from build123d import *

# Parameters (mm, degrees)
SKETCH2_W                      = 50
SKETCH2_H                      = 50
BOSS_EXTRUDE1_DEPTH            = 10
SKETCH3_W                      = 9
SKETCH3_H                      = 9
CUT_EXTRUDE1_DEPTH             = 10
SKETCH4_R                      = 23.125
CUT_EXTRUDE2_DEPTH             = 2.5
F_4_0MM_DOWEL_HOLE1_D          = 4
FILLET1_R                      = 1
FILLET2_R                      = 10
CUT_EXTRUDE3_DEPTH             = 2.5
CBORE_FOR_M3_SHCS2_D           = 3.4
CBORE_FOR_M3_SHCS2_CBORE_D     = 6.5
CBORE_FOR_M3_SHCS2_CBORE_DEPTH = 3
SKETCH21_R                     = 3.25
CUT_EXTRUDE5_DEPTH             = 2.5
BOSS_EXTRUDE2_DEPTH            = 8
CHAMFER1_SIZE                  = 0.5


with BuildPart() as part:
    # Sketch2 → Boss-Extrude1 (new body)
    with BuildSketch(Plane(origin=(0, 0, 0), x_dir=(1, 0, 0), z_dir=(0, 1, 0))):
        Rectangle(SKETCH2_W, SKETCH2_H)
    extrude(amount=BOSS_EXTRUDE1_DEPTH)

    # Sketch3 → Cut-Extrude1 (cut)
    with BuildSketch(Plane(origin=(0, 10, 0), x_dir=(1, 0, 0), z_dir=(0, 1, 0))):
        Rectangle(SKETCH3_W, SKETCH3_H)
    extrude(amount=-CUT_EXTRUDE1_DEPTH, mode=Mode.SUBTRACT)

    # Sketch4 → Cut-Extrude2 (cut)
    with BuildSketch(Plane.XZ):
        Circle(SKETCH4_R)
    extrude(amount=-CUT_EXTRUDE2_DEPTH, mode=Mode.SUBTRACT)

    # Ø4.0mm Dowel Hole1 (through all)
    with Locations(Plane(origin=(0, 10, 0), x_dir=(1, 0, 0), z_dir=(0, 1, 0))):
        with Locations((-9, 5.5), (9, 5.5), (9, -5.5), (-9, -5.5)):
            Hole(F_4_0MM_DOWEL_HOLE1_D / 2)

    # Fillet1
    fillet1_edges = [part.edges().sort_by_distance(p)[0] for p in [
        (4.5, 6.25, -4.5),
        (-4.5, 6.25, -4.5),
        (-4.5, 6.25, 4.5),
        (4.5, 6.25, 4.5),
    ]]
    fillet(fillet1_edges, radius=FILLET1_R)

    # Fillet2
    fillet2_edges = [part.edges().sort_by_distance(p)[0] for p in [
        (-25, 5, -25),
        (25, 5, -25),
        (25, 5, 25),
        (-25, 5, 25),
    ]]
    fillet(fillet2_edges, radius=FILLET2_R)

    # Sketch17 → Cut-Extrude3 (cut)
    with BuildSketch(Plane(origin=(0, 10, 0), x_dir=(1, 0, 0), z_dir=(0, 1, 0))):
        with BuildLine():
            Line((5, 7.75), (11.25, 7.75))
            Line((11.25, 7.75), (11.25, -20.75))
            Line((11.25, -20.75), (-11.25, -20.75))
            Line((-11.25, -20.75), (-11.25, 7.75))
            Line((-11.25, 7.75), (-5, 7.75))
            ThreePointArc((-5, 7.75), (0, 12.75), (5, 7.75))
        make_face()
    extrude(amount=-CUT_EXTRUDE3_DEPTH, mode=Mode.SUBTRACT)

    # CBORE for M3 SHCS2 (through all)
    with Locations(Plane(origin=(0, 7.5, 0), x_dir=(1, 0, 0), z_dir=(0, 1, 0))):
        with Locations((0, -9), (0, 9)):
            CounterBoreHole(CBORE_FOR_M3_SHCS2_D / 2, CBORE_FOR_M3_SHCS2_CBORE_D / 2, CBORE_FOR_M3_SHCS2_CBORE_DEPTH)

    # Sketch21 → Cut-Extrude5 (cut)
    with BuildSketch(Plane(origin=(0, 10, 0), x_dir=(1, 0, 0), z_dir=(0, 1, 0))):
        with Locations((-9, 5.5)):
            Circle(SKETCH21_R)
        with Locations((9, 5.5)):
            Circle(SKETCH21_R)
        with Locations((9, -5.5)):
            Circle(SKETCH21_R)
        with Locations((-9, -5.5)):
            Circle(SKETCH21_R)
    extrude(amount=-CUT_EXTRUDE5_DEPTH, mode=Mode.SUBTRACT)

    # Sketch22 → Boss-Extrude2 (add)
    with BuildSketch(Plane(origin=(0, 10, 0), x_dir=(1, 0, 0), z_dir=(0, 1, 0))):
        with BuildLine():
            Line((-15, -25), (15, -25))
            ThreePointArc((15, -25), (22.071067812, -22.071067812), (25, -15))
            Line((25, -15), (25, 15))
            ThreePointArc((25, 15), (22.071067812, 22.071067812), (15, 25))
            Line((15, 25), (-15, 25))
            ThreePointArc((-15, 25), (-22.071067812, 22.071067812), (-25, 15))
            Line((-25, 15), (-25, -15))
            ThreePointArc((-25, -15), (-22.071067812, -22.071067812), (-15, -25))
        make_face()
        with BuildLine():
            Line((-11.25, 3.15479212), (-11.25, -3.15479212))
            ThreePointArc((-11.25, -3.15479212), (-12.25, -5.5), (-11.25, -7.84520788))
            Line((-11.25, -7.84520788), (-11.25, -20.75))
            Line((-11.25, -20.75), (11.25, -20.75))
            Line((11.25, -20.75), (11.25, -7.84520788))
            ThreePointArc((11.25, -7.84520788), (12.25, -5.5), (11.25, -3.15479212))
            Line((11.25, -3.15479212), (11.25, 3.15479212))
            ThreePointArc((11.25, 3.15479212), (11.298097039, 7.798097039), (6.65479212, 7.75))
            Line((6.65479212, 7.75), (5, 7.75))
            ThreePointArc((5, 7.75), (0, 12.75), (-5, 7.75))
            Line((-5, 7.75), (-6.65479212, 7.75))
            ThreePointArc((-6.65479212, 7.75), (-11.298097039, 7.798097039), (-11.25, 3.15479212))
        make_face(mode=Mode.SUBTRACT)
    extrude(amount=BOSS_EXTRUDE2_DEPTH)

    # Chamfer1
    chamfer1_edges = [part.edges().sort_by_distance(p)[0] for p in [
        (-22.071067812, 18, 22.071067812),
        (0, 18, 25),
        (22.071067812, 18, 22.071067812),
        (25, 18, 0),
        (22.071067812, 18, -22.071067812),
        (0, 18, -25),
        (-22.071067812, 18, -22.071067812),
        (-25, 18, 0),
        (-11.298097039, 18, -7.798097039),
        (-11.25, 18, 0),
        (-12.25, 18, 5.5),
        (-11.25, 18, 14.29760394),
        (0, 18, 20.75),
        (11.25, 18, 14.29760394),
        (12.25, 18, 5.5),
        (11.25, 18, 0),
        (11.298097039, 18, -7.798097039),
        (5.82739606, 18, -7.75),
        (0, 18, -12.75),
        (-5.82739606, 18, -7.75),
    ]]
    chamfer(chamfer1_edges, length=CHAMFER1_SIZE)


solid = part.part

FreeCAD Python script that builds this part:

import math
import FreeCAD as App
import Part
import Sketcher
from FreeCAD import Vector


def edges_at(feature, points):
    """Names of the edges that pass closest to the given points."""
    edges = feature.Shape.Edges
    near = lambda p: min(range(len(edges)), key=lambda i: edges[i].distToShape(Part.Vertex(*p))[0])
    return sorted({f"Edge{near(p) + 1}" for p in points})


def add_polygon(sketch, points):
    """Adds a closed chain of lines whose ends are joined by coincident constraints."""
    first, n = sketch.GeometryCount, len(points)
    for a, b in zip(points, points[1:] + points[:1]):
        sketch.addGeometry(Part.LineSegment(App.Vector(*a, 0), App.Vector(*b, 0)), False)
    for i in range(n):
        sketch.addConstraint(Sketcher.Constraint("Coincident", first + i, 2, first + (i + 1) % n, 1))

doc = App.newDocument("Part")
body = doc.addObject("PartDesign::Body", "Body")

# Sketch on XZ plane
sketch1 = body.newObject("Sketcher::SketchObject", "Sketch")
sketch1.AttachmentSupport = (doc.getObject("XZ_Plane"), [""])
sketch1.MapMode = "FlatFace"
add_polygon(sketch1, [(-25, -25), (-25, 25), (25, 25), (25, -25)])  # lines 0-3
sketch1.addConstraint([
    Sketcher.Constraint("Vertical", 0),
    Sketcher.Constraint("Horizontal", 1),
    Sketcher.Constraint("Vertical", 2),
    Sketcher.Constraint("Horizontal", 3),
    Sketcher.Constraint("Symmetric", 0, 2, 2, 2, -1, 1),
    Sketcher.Constraint("Equal", 3, 0),
    Sketcher.Constraint("DistanceX", 1, 1, 1, 2, 50.0),
])
pad1 = body.newObject("PartDesign::Pad", "Pad")
pad1.Profile = sketch1
pad1.Length = 10
pad1.Reversed = True

# Sketch on XZ plane
sketch2 = body.newObject("Sketcher::SketchObject", "Sketch001")
sketch2.AttachmentSupport = (doc.getObject("XZ_Plane"), [""])
sketch2.MapMode = "FlatFace"
sketch2.AttachmentOffset = App.Placement(Vector(0, 0, -10), App.Rotation())
add_polygon(sketch2, [(-4, -4), (-4, 4), (4, 4), (4, -4)])  # lines 0-3
sketch2.addConstraint([
    Sketcher.Constraint("Vertical", 0),
    Sketcher.Constraint("Horizontal", 1),
    Sketcher.Constraint("Vertical", 2),
    Sketcher.Constraint("Horizontal", 3),
    Sketcher.Constraint("Symmetric", 0, 2, 2, 2, -1, 1),
    Sketcher.Constraint("Equal", 3, 0),
    Sketcher.Constraint("DistanceX", 1, 1, 1, 2, 9.0),
])
pocket1 = body.newObject("PartDesign::Pocket", "Pocket")
pocket1.Profile = sketch2
pocket1.Length = 10
pocket1.Reversed = True

# Sketch on XZ plane
sketch3 = body.newObject("Sketcher::SketchObject", "Sketch002")
sketch3.AttachmentSupport = (doc.getObject("XZ_Plane"), [""])
sketch3.MapMode = "FlatFace"
sketch3.addGeometry(Part.Circle(Vector(0, 0, 0), Vector(0, 0, 1), 23), False)
sketch3.addConstraint([
    Sketcher.Constraint("Coincident", 0, 3, -1, 1),
    Sketcher.Constraint("Diameter", 0, 46.25),
])
pocket2 = body.newObject("PartDesign::Pocket", "Pocket001")
pocket2.Profile = sketch3
pocket2.Length = 2.5

# Sketch on XZ plane
sketch4 = body.newObject("Sketcher::SketchObject", "Sketch003")
sketch4.AttachmentSupport = (doc.getObject("XZ_Plane"), [""])
sketch4.MapMode = "FlatFace"
sketch4.AttachmentOffset = App.Placement(Vector(0, 0, -10), App.Rotation())
sketch4.addGeometry([
    Part.Circle(Vector(-9, -5.5, 0), Vector(0, 0, 1), 2),
    Part.Circle(Vector(9, -5.5, 0), Vector(0, 0, 1), 2),
    Part.Circle(Vector(9, 5.5, 0), Vector(0, 0, 1), 2),
    Part.Circle(Vector(-9, 5.5, 0), Vector(0, 0, 1), 2),
], False)
sketch4.addConstraint([
    Sketcher.Constraint("Equal", 0, 1),
    Sketcher.Constraint("Equal", 1, 2),
    Sketcher.Constraint("Equal", 2, 3),
    Sketcher.Constraint("Symmetric", 0, 3, 2, 3, -1, 1),
    Sketcher.Constraint("Symmetric", 1, 3, 3, 3, -1, 1),
    Sketcher.Constraint("Symmetric", 0, 3, 1, 3, -2),
    Sketcher.Constraint("Diameter", 0, 4.0),
    Sketcher.Constraint("DistanceX", 0, 3, -1, 1, 9.0),
    Sketcher.Constraint("DistanceY", 1, 3, 2, 3, 11.0),
])
doc.recompute()
hole = body.newObject("PartDesign::Hole", "Hole")
hole.Profile = sketch4
hole.ThreadType = "None"
hole.Diameter = 4
hole.DepthType = "ThroughAll"
hole.Reversed = True
doc.recompute()

fillet = body.newObject("PartDesign::Fillet", "Fillet")
fillet.Base = (hole, edges_at(hole, [
    (4.5, 6.25, -4.5),
    (-4.5, 6.25, -4.5),
    (-4.5, 6.25, 4.5),
    (4.5, 6.25, 4.5),
]))
fillet.Radius = 1
doc.recompute()

fillet2 = body.newObject("PartDesign::Fillet", "Fillet001")
fillet2.Base = (fillet, edges_at(fillet, [
    (-25, 5, -25),
    (25, 5, -25),
    (25, 5, 25),
    (-25, 5, 25),
]))
fillet2.Radius = 10

# Sketch on XZ plane
sketch5 = body.newObject("Sketcher::SketchObject", "Sketch004")
sketch5.AttachmentSupport = (doc.getObject("XZ_Plane"), [""])
sketch5.MapMode = "FlatFace"
sketch5.AttachmentOffset = App.Placement(Vector(0, 0, -10), App.Rotation())
sketch5.addGeometry([
    Part.LineSegment(Vector(11, -8, 0), Vector(5, -8, 0)),  # 0
    Part.ArcOfCircle(Part.Circle(Vector(0, -8, 0), Vector(0, 0, 1), 5), math.radians(180), math.radians(360)),  # 1
    Part.LineSegment(Vector(-5, -8, 0), Vector(-11, -8, 0)),  # 2
    Part.LineSegment(Vector(-11, -8, 0), Vector(-11, 21, 0)),  # 3
    Part.LineSegment(Vector(-11, 21, 0), Vector(11, 21, 0)),  # 4
    Part.LineSegment(Vector(11, 21, 0), Vector(11, -8, 0)),  # 5
], False)
sketch5.addConstraint([
    Sketcher.Constraint("Coincident", 0, 2, 1, 2),
    Sketcher.Constraint("Coincident", 1, 1, 2, 1),
    Sketcher.Constraint("Coincident", 2, 2, 3, 1),
    Sketcher.Constraint("Coincident", 3, 2, 4, 1),
    Sketcher.Constraint("Coincident", 4, 2, 5, 1),
    Sketcher.Constraint("Coincident", 5, 2, 0, 1),
    Sketcher.Constraint("Horizontal", 0),
    Sketcher.Constraint("Horizontal", 2),
    Sketcher.Constraint("Vertical", 3),
    Sketcher.Constraint("Horizontal", 4),
    Sketcher.Constraint("Vertical", 5),
    Sketcher.Constraint("Symmetric", 0, 2, 1, 1, -2),
    Sketcher.Constraint("Horizontal", 1, 3, 0, 2),
    Sketcher.Constraint("Equal", 0, 2),
    Sketcher.Constraint("Radius", 1, 5.0),
    Sketcher.Constraint("DistanceX", 4, 1, 4, 2, 22.5),
    Sketcher.Constraint("DistanceY", 3, 1, 3, 2, 28.5),
    Sketcher.Constraint("DistanceY", 1, 3, -1, 1, 7.75),
])
pocket3 = body.newObject("PartDesign::Pocket", "Pocket002")
pocket3.Profile = sketch5
pocket3.Length = 2.5
pocket3.Reversed = True

# Sketch on XZ plane
sketch6 = body.newObject("Sketcher::SketchObject", "Sketch005")
sketch6.AttachmentSupport = (doc.getObject("XZ_Plane"), [""])
sketch6.MapMode = "FlatFace"
sketch6.AttachmentOffset = App.Placement(Vector(0, 0, -7.5), App.Rotation())
sketch6.addGeometry([
    Part.Circle(Vector(0, 9, 0), Vector(0, 0, 1), 1.7),
    Part.Circle(Vector(0, -9, 0), Vector(0, 0, 1), 1.7),
], False)
sketch6.addConstraint([
    Sketcher.Constraint("Equal", 0, 1),
    Sketcher.Constraint("Symmetric", 0, 3, 1, 3, -1, 1),
    Sketcher.Constraint("PointOnObject", 0, 3, -2),
    Sketcher.Constraint("Diameter", 0, 3.4),
    Sketcher.Constraint("DistanceY", -1, 1, 0, 3, 9.0),
])
doc.recompute()
hole2 = body.newObject("PartDesign::Hole", "Hole001")
hole2.Profile = sketch6
hole2.ThreadType = "None"
hole2.Diameter = 3.4
hole2.DepthType = "ThroughAll"
hole2.HoleCutType = "Counterbore"
hole2.HoleCutDiameter = 6.5
hole2.HoleCutDepth = 3
hole2.Reversed = True

# Sketch on XZ plane
sketch7 = body.newObject("Sketcher::SketchObject", "Sketch006")
sketch7.AttachmentSupport = (doc.getObject("XZ_Plane"), [""])
sketch7.MapMode = "FlatFace"
sketch7.AttachmentOffset = App.Placement(Vector(0, 0, -10), App.Rotation())
sketch7.addGeometry([
    Part.Circle(Vector(-9, -5.5, 0), Vector(0, 0, 1), 3.2),
    Part.Circle(Vector(9, -5.5, 0), Vector(0, 0, 1), 3.2),
    Part.Circle(Vector(9, 5.5, 0), Vector(0, 0, 1), 3.2),
    Part.Circle(Vector(-9, 5.5, 0), Vector(0, 0, 1), 3.2),
], False)
sketch7.addConstraint([
    Sketcher.Constraint("Equal", 0, 1),
    Sketcher.Constraint("Equal", 1, 2),
    Sketcher.Constraint("Equal", 2, 3),
    Sketcher.Constraint("Symmetric", 0, 3, 2, 3, -1, 1),
    Sketcher.Constraint("Symmetric", 1, 3, 3, 3, -1, 1),
    Sketcher.Constraint("Symmetric", 0, 3, 1, 3, -2),
    Sketcher.Constraint("Diameter", 0, 6.5),
    Sketcher.Constraint("DistanceX", 0, 3, -1, 1, 9.0),
    Sketcher.Constraint("DistanceY", 1, 3, 2, 3, 11.0),
])
pocket4 = body.newObject("PartDesign::Pocket", "Pocket003")
pocket4.Profile = sketch7
pocket4.Length = 2.5
pocket4.Reversed = True

# Sketch on XZ plane
sketch8 = body.newObject("Sketcher::SketchObject", "Sketch007")
sketch8.AttachmentSupport = (doc.getObject("XZ_Plane"), [""])
sketch8.MapMode = "FlatFace"
sketch8.AttachmentOffset = App.Placement(Vector(0, 0, -10), App.Rotation())
sketch8.addGeometry([
    Part.LineSegment(Vector(-15, 25, 0), Vector(15, 25, 0)),  # 0
    Part.ArcOfCircle(Part.Circle(Vector(15, 15, 0), Vector(0, 0, 1), 10), math.radians(0), math.radians(90)),  # 1
    Part.LineSegment(Vector(25, 15, 0), Vector(25, -15, 0)),  # 2
    Part.ArcOfCircle(Part.Circle(Vector(15, -15, 0), Vector(0, 0, 1), 10), math.radians(-90), math.radians(0)),  # 3
    Part.LineSegment(Vector(15, -25, 0), Vector(-15, -25, 0)),  # 4
    Part.ArcOfCircle(Part.Circle(Vector(-15, -15, 0), Vector(0, 0, 1), 10), math.radians(180), math.radians(270)),  # 5
    Part.LineSegment(Vector(-25, -15, 0), Vector(-25, 15, 0)),  # 6
    Part.ArcOfCircle(Part.Circle(Vector(-15, 15, 0), Vector(0, 0, 1), 10), math.radians(90), math.radians(180)),  # 7
    Part.LineSegment(Vector(-11.2, 3.2, 0), Vector(-11.2, -3.2, 0)),  # 8
    Part.ArcOfCircle(Part.Circle(Vector(-9, -5.5, 0), Vector(0, 0, 1), 3.2), math.radians(134), math.radians(316)),  # 9
    Part.LineSegment(Vector(-6.7, -7.8, 0), Vector(-5, -7.8, 0)),  # 10
    Part.ArcOfCircle(Part.Circle(Vector(0, -7.8, 0), Vector(0, 0, 1), 5), math.radians(180), math.radians(360)),  # 11
    Part.LineSegment(Vector(5, -7.8, 0), Vector(6.7, -7.8, 0)),  # 12
    Part.ArcOfCircle(Part.Circle(Vector(9, -5.5, 0), Vector(0, 0, 1), 3.2), math.radians(-136), math.radians(46)),  # 13
    Part.LineSegment(Vector(11.2, -3.2, 0), Vector(11.2, 3.2, 0)),  # 14
    Part.ArcOfCircle(Part.Circle(Vector(9, 5.5, 0), Vector(0, 0, 1), 3.2), math.radians(-46), math.radians(46)),  # 15
    Part.LineSegment(Vector(11.2, 7.8, 0), Vector(11.2, 20.8, 0)),  # 16
    Part.LineSegment(Vector(11.2, 20.8, 0), Vector(-11.2, 20.8, 0)),  # 17
    Part.LineSegment(Vector(-11.2, 20.8, 0), Vector(-11.2, 7.8, 0)),  # 18
    Part.ArcOfCircle(Part.Circle(Vector(-9, 5.5, 0), Vector(0, 0, 1), 3.2), math.radians(134), math.radians(226)),  # 19
], False)
sketch8.addConstraint([
    Sketcher.Constraint("Tangent", 0, 2, 1, 2),
    Sketcher.Constraint("Tangent", 1, 1, 2, 1),
    Sketcher.Constraint("Tangent", 2, 2, 3, 2),
    Sketcher.Constraint("Tangent", 3, 1, 4, 1),
    Sketcher.Constraint("Tangent", 4, 2, 5, 2),
    Sketcher.Constraint("Tangent", 5, 1, 6, 1),
    Sketcher.Constraint("Tangent", 6, 2, 7, 2),
    Sketcher.Constraint("Tangent", 7, 1, 0, 1),
    Sketcher.Constraint("Coincident", 8, 2, 9, 1),
    Sketcher.Constraint("Coincident", 9, 2, 10, 1),
    Sketcher.Constraint("Coincident", 10, 2, 11, 1),
    Sketcher.Constraint("Coincident", 11, 2, 12, 1),
    Sketcher.Constraint("Coincident", 12, 2, 13, 1),
    Sketcher.Constraint("Coincident", 13, 2, 14, 1),
    Sketcher.Constraint("Coincident", 14, 2, 15, 1),
    Sketcher.Constraint("Coincident", 15, 2, 16, 1),
    Sketcher.Constraint("Coincident", 16, 2, 17, 1),
    Sketcher.Constraint("Coincident", 17, 2, 18, 1),
    Sketcher.Constraint("Coincident", 18, 2, 19, 1),
    Sketcher.Constraint("Coincident", 19, 2, 8, 1),
    Sketcher.Constraint("Horizontal", 0),
    Sketcher.Constraint("Vertical", 2),
    Sketcher.Constraint("Horizontal", 4),
    Sketcher.Constraint("Vertical", 6),
    Sketcher.Constraint("Vertical", 8),
    Sketcher.Constraint("Horizontal", 10),
    Sketcher.Constraint("Horizontal", 12),
    Sketcher.Constraint("Vertical", 14),
    Sketcher.Constraint("Vertical", 16),
    Sketcher.Constraint("Horizontal", 17),
    Sketcher.Constraint("Vertical", 18),
    Sketcher.Constraint("Equal", 1, 3),
    Sketcher.Constraint("Equal", 3, 5),
    Sketcher.Constraint("Equal", 5, 7),
    Sketcher.Constraint("Equal", 9, 13),
    Sketcher.Constraint("Equal", 13, 15),
    Sketcher.Constraint("Equal", 15, 19),
    Sketcher.Constraint("Symmetric", 1, 3, 5, 3, -1, 1),
    Sketcher.Constraint("Symmetric", 9, 3, 15, 3, -1, 1),
    Sketcher.Constraint("Symmetric", 13, 3, 19, 3, -1, 1),
    Sketcher.Constraint("Symmetric", 9, 3, 13, 3, -2),
    Sketcher.Constraint("Symmetric", 10, 2, 11, 2, -2),
    Sketcher.Constraint("Horizontal", 11, 3, 9, 2),
    Sketcher.Constraint("Horizontal", 8, 2, 13, 2),
    Sketcher.Constraint("Horizontal", 15, 2, 18, 2),
    Sketcher.Constraint("Vertical", 14, 2, 15, 2),
    Sketcher.Constraint("Equal", 4, 2),
    Sketcher.Constraint("Radius", 1, 10.0),
    Sketcher.Constraint("Radius", 11, 5.0),
    Sketcher.Constraint("DistanceX", 0, 1, 0, 2, 30.0),
    Sketcher.Constraint("Radius", 9, 3.25),
    Sketcher.Constraint("DistanceX", 17, 2, 17, 1, 22.5),
    Sketcher.Constraint("DistanceX", 9, 3, -1, 1, 9.0),
    Sketcher.Constraint("DistanceY", 13, 3, 15, 3, 11.0),
    Sketcher.Constraint("DistanceY", 11, 3, -1, 1, 7.75),
    Sketcher.Constraint("DistanceY", -1, 1, 16, 2, 20.75),
])
pad2 = body.newObject("PartDesign::Pad", "Pad001")
pad2.Profile = sketch8
pad2.Length = 8
pad2.Reversed = True
doc.recompute()

chamfer = body.newObject("PartDesign::Chamfer", "Chamfer")
chamfer.Base = (pad2, edges_at(pad2, [
    (-22.071, 18, 22.071),
    (0, 18, 25),
    (22.071, 18, 22.071),
    (25, 18, 0),
    (22.071, 18, -22.071),
    (0, 18, -25),
    (-22.071, 18, -22.071),
    (-25, 18, 0),
    (-11.298, 18, -7.798),
    (-11.25, 18, 0),
    (-12.25, 18, 5.5),
    (-11.25, 18, 14.298),
    (0, 18, 20.75),
    (11.25, 18, 14.298),
    (12.25, 18, 5.5),
    (11.25, 18, 0),
    (11.298, 18, -7.798),
    (5.827, 18, -7.75),
    (0, 18, -12.75),
    (-5.827, 18, -7.75),
]))
chamfer.Size = 0.5

doc.recompute()
